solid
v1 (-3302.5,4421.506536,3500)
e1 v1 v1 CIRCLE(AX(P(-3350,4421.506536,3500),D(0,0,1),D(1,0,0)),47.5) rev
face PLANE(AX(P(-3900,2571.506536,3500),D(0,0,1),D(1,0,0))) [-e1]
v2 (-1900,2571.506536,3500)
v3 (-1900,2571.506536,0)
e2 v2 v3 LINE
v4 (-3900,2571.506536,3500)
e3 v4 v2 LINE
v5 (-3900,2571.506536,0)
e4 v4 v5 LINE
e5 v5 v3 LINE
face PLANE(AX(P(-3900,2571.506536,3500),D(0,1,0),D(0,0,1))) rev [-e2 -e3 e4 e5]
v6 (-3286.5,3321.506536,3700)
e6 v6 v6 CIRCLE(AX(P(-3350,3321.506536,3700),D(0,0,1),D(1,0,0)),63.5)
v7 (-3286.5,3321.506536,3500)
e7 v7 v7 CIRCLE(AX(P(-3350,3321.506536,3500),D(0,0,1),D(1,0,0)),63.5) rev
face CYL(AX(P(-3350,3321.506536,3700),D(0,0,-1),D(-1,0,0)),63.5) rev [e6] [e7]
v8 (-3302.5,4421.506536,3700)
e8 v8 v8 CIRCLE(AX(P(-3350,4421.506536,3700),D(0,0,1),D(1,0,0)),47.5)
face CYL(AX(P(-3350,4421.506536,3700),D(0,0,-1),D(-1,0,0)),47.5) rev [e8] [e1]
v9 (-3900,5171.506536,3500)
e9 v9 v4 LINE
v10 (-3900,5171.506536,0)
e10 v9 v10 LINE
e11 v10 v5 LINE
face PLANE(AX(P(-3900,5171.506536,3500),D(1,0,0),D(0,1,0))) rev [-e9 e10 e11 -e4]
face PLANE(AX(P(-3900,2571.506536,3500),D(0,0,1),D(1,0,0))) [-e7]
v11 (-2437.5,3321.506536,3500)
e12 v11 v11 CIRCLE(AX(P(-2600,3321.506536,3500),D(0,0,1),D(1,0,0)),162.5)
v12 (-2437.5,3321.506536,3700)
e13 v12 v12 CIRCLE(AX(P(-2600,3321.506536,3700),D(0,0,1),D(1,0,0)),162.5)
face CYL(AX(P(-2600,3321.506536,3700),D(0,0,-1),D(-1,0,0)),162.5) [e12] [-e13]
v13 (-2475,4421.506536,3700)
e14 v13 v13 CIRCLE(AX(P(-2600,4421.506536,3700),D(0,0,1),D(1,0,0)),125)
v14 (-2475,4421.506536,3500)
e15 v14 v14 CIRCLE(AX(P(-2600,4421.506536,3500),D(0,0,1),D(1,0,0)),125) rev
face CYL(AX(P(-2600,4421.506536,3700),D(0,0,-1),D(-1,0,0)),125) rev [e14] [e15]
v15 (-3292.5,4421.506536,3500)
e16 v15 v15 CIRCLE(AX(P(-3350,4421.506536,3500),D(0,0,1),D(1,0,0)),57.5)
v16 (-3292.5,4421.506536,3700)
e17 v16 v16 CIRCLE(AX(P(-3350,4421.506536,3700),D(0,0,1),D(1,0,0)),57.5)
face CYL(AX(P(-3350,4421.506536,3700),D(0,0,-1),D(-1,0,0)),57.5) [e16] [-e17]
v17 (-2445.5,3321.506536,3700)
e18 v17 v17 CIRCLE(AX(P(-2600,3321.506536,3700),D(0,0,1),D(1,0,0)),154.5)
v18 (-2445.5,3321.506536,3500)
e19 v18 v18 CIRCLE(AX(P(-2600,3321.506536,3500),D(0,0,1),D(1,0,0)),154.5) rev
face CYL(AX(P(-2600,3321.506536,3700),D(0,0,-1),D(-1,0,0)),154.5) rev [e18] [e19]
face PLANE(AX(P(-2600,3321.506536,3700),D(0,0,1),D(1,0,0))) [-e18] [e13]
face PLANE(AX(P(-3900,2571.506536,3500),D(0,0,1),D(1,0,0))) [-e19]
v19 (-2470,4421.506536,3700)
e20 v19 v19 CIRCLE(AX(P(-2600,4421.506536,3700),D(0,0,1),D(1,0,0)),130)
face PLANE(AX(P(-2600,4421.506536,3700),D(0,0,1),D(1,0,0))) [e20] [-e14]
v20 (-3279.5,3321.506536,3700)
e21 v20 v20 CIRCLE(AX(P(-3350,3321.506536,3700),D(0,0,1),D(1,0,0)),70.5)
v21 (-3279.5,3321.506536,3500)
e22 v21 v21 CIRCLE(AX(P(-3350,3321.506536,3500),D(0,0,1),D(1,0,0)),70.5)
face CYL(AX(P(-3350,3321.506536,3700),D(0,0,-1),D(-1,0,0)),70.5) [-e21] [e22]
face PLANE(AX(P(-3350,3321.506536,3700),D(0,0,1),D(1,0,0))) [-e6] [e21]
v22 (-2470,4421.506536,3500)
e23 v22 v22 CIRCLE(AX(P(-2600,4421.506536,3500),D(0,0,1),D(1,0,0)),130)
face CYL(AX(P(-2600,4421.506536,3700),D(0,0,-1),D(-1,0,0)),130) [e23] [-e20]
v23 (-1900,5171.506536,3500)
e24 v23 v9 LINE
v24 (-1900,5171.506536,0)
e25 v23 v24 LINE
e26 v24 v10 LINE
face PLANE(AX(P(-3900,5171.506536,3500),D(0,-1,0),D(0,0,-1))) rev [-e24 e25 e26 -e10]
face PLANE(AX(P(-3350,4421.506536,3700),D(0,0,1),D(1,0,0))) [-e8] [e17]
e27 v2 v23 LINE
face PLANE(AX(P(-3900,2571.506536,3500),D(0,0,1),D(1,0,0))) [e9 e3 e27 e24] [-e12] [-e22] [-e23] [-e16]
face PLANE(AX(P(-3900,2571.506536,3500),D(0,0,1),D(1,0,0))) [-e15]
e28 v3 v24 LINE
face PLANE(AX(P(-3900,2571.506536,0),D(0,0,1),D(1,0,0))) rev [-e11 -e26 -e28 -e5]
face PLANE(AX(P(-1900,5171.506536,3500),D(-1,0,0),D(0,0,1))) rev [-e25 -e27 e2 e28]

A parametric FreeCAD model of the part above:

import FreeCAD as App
import Part
import Sketcher
from FreeCAD import Vector
Q = App.Units.Quantity

doc = App.newDocument("Part")
body = doc.addObject("PartDesign::Body", "Body")

sketch1 = body.newObject("Sketcher::SketchObject", "Sketch")
sketch1.AttachmentSupport = (doc.getObject("XY_Plane"), [""])
sketch1.MapMode = "FlatFace"
sketch1.addGeometry(Part.LineSegment(Vector(-3900, 5172, 0), Vector(-3900, 2572, 0)), False)
sketch1.addGeometry(Part.LineSegment(Vector(-3900, 2572, 0), Vector(-1900, 2572, 0)), False)
sketch1.addGeometry(Part.LineSegment(Vector(-1900, 2572, 0), Vector(-1900, 5172, 0)), False)
sketch1.addGeometry(Part.LineSegment(Vector(-1900, 5172, 0), Vector(-3900, 5172, 0)), False)
sketch1.addConstraint(Sketcher.Constraint("Coincident", 0, 2, 1, 1))
sketch1.addConstraint(Sketcher.Constraint("Coincident", 1, 2, 2, 1))
sketch1.addConstraint(Sketcher.Constraint("Coincident", 2, 2, 3, 1))
sketch1.addConstraint(Sketcher.Constraint("Coincident", 3, 2, 0, 1))
sketch1.addConstraint(Sketcher.Constraint("Vertical", 0))
sketch1.addConstraint(Sketcher.Constraint("Horizontal", 1))
sketch1.addConstraint(Sketcher.Constraint("Vertical", 2))
sketch1.addConstraint(Sketcher.Constraint("Horizontal", 3))
sketch1.addConstraint(Sketcher.Constraint("DistanceX", 1, 1, 1, 2, Q("2000 mm")))
sketch1.addConstraint(Sketcher.Constraint("DistanceY", 0, 2, 0, 1, Q("2600 mm")))
sketch1.addConstraint(Sketcher.Constraint("DistanceX", 0, 2, -1, 1, Q("3900 mm")))
sketch1.addConstraint(Sketcher.Constraint("DistanceY", -1, 1, 0, 2, Q("2571.506536 mm")))
pad1 = body.newObject("PartDesign::Pad", "Pad")
pad1.Profile = sketch1
pad1.Length = 3500

sketch2 = body.newObject("Sketcher::SketchObject", "Sketch001")
sketch2.AttachmentSupport = (doc.getObject("XY_Plane"), [""])
sketch2.MapMode = "FlatFace"
sketch2.AttachmentOffset = App.Placement(Vector(0, 0, 3500), App.Rotation())
sketch2.addGeometry(Part.Circle(Vector(-2600, 3322, 0), Vector(0, 0, 1), 162), False)
sketch2.addGeometry(Part.Circle(Vector(-2600, 3322, 0), Vector(0, 0, 1), 154), False)
sketch2.addGeometry(Part.Circle(Vector(-3350, 3322, 0), Vector(0, 0, 1), 70), False)
sketch2.addGeometry(Part.Circle(Vector(-3350, 3322, 0), Vector(0, 0, 1), 64), False)
sketch2.addGeometry(Part.Circle(Vector(-2600, 4422, 0), Vector(0, 0, 1), 130), False)
sketch2.addGeometry(Part.Circle(Vector(-2600, 4422, 0), Vector(0, 0, 1), 125), False)
sketch2.addGeometry(Part.Circle(Vector(-3350, 4422, 0), Vector(0, 0, 1), 58), False)
sketch2.addGeometry(Part.Circle(Vector(-3350, 4422, 0), Vector(0, 0, 1), 48), False)
sketch2.addConstraint(Sketcher.Constraint("Coincident", 1, 3, 0, 3))
sketch2.addConstraint(Sketcher.Constraint("Coincident", 3, 3, 2, 3))
sketch2.addConstraint(Sketcher.Constraint("Coincident", 5, 3, 4, 3))
sketch2.addConstraint(Sketcher.Constraint("Coincident", 7, 3, 6, 3))
sketch2.addConstraint(Sketcher.Constraint("Horizontal", 1, 3, 2, 3))
sketch2.addConstraint(Sketcher.Constraint("Horizontal", 5, 3, 6, 3))
sketch2.addConstraint(Sketcher.Constraint("Vertical", 1, 3, 4, 3))
sketch2.addConstraint(Sketcher.Constraint("Vertical", 3, 3, 6, 3))
sketch2.addConstraint(Sketcher.Constraint("Diameter", 0, Q("325 mm")))
sketch2.addConstraint(Sketcher.Constraint("Diameter", 1, Q("309 mm")))
sketch2.addConstraint(Sketcher.Constraint("Diameter", 2, Q("141 mm")))
sketch2.addConstraint(Sketcher.Constraint("Diameter", 3, Q("127 mm")))
sketch2.addConstraint(Sketcher.Constraint("Diameter", 4, Q("260 mm")))
sketch2.addConstraint(Sketcher.Constraint("Diameter", 5, Q("250 mm")))
sketch2.addConstraint(Sketcher.Constraint("Diameter", 6, Q("115 mm")))
sketch2.addConstraint(Sketcher.Constraint("Diameter", 7, Q("95 mm")))
sketch2.addConstraint(Sketcher.Constraint("DistanceX", 0, 3, -1, 1, Q("2600 mm")))
sketch2.addConstraint(Sketcher.Constraint("DistanceX", 2, 3, -1, 1, Q("3350 mm")))
sketch2.addConstraint(Sketcher.Constraint("DistanceY", 0, 3, 4, 3, Q("1100 mm")))
sketch2.addConstraint(Sketcher.Constraint("DistanceY", -1, 1, 0, 3, Q("3321.506536 mm")))
pad2 = body.newObject("PartDesign::Pad", "Pad001")
pad2.Profile = sketch2
pad2.Length = 200

doc.recompute()
